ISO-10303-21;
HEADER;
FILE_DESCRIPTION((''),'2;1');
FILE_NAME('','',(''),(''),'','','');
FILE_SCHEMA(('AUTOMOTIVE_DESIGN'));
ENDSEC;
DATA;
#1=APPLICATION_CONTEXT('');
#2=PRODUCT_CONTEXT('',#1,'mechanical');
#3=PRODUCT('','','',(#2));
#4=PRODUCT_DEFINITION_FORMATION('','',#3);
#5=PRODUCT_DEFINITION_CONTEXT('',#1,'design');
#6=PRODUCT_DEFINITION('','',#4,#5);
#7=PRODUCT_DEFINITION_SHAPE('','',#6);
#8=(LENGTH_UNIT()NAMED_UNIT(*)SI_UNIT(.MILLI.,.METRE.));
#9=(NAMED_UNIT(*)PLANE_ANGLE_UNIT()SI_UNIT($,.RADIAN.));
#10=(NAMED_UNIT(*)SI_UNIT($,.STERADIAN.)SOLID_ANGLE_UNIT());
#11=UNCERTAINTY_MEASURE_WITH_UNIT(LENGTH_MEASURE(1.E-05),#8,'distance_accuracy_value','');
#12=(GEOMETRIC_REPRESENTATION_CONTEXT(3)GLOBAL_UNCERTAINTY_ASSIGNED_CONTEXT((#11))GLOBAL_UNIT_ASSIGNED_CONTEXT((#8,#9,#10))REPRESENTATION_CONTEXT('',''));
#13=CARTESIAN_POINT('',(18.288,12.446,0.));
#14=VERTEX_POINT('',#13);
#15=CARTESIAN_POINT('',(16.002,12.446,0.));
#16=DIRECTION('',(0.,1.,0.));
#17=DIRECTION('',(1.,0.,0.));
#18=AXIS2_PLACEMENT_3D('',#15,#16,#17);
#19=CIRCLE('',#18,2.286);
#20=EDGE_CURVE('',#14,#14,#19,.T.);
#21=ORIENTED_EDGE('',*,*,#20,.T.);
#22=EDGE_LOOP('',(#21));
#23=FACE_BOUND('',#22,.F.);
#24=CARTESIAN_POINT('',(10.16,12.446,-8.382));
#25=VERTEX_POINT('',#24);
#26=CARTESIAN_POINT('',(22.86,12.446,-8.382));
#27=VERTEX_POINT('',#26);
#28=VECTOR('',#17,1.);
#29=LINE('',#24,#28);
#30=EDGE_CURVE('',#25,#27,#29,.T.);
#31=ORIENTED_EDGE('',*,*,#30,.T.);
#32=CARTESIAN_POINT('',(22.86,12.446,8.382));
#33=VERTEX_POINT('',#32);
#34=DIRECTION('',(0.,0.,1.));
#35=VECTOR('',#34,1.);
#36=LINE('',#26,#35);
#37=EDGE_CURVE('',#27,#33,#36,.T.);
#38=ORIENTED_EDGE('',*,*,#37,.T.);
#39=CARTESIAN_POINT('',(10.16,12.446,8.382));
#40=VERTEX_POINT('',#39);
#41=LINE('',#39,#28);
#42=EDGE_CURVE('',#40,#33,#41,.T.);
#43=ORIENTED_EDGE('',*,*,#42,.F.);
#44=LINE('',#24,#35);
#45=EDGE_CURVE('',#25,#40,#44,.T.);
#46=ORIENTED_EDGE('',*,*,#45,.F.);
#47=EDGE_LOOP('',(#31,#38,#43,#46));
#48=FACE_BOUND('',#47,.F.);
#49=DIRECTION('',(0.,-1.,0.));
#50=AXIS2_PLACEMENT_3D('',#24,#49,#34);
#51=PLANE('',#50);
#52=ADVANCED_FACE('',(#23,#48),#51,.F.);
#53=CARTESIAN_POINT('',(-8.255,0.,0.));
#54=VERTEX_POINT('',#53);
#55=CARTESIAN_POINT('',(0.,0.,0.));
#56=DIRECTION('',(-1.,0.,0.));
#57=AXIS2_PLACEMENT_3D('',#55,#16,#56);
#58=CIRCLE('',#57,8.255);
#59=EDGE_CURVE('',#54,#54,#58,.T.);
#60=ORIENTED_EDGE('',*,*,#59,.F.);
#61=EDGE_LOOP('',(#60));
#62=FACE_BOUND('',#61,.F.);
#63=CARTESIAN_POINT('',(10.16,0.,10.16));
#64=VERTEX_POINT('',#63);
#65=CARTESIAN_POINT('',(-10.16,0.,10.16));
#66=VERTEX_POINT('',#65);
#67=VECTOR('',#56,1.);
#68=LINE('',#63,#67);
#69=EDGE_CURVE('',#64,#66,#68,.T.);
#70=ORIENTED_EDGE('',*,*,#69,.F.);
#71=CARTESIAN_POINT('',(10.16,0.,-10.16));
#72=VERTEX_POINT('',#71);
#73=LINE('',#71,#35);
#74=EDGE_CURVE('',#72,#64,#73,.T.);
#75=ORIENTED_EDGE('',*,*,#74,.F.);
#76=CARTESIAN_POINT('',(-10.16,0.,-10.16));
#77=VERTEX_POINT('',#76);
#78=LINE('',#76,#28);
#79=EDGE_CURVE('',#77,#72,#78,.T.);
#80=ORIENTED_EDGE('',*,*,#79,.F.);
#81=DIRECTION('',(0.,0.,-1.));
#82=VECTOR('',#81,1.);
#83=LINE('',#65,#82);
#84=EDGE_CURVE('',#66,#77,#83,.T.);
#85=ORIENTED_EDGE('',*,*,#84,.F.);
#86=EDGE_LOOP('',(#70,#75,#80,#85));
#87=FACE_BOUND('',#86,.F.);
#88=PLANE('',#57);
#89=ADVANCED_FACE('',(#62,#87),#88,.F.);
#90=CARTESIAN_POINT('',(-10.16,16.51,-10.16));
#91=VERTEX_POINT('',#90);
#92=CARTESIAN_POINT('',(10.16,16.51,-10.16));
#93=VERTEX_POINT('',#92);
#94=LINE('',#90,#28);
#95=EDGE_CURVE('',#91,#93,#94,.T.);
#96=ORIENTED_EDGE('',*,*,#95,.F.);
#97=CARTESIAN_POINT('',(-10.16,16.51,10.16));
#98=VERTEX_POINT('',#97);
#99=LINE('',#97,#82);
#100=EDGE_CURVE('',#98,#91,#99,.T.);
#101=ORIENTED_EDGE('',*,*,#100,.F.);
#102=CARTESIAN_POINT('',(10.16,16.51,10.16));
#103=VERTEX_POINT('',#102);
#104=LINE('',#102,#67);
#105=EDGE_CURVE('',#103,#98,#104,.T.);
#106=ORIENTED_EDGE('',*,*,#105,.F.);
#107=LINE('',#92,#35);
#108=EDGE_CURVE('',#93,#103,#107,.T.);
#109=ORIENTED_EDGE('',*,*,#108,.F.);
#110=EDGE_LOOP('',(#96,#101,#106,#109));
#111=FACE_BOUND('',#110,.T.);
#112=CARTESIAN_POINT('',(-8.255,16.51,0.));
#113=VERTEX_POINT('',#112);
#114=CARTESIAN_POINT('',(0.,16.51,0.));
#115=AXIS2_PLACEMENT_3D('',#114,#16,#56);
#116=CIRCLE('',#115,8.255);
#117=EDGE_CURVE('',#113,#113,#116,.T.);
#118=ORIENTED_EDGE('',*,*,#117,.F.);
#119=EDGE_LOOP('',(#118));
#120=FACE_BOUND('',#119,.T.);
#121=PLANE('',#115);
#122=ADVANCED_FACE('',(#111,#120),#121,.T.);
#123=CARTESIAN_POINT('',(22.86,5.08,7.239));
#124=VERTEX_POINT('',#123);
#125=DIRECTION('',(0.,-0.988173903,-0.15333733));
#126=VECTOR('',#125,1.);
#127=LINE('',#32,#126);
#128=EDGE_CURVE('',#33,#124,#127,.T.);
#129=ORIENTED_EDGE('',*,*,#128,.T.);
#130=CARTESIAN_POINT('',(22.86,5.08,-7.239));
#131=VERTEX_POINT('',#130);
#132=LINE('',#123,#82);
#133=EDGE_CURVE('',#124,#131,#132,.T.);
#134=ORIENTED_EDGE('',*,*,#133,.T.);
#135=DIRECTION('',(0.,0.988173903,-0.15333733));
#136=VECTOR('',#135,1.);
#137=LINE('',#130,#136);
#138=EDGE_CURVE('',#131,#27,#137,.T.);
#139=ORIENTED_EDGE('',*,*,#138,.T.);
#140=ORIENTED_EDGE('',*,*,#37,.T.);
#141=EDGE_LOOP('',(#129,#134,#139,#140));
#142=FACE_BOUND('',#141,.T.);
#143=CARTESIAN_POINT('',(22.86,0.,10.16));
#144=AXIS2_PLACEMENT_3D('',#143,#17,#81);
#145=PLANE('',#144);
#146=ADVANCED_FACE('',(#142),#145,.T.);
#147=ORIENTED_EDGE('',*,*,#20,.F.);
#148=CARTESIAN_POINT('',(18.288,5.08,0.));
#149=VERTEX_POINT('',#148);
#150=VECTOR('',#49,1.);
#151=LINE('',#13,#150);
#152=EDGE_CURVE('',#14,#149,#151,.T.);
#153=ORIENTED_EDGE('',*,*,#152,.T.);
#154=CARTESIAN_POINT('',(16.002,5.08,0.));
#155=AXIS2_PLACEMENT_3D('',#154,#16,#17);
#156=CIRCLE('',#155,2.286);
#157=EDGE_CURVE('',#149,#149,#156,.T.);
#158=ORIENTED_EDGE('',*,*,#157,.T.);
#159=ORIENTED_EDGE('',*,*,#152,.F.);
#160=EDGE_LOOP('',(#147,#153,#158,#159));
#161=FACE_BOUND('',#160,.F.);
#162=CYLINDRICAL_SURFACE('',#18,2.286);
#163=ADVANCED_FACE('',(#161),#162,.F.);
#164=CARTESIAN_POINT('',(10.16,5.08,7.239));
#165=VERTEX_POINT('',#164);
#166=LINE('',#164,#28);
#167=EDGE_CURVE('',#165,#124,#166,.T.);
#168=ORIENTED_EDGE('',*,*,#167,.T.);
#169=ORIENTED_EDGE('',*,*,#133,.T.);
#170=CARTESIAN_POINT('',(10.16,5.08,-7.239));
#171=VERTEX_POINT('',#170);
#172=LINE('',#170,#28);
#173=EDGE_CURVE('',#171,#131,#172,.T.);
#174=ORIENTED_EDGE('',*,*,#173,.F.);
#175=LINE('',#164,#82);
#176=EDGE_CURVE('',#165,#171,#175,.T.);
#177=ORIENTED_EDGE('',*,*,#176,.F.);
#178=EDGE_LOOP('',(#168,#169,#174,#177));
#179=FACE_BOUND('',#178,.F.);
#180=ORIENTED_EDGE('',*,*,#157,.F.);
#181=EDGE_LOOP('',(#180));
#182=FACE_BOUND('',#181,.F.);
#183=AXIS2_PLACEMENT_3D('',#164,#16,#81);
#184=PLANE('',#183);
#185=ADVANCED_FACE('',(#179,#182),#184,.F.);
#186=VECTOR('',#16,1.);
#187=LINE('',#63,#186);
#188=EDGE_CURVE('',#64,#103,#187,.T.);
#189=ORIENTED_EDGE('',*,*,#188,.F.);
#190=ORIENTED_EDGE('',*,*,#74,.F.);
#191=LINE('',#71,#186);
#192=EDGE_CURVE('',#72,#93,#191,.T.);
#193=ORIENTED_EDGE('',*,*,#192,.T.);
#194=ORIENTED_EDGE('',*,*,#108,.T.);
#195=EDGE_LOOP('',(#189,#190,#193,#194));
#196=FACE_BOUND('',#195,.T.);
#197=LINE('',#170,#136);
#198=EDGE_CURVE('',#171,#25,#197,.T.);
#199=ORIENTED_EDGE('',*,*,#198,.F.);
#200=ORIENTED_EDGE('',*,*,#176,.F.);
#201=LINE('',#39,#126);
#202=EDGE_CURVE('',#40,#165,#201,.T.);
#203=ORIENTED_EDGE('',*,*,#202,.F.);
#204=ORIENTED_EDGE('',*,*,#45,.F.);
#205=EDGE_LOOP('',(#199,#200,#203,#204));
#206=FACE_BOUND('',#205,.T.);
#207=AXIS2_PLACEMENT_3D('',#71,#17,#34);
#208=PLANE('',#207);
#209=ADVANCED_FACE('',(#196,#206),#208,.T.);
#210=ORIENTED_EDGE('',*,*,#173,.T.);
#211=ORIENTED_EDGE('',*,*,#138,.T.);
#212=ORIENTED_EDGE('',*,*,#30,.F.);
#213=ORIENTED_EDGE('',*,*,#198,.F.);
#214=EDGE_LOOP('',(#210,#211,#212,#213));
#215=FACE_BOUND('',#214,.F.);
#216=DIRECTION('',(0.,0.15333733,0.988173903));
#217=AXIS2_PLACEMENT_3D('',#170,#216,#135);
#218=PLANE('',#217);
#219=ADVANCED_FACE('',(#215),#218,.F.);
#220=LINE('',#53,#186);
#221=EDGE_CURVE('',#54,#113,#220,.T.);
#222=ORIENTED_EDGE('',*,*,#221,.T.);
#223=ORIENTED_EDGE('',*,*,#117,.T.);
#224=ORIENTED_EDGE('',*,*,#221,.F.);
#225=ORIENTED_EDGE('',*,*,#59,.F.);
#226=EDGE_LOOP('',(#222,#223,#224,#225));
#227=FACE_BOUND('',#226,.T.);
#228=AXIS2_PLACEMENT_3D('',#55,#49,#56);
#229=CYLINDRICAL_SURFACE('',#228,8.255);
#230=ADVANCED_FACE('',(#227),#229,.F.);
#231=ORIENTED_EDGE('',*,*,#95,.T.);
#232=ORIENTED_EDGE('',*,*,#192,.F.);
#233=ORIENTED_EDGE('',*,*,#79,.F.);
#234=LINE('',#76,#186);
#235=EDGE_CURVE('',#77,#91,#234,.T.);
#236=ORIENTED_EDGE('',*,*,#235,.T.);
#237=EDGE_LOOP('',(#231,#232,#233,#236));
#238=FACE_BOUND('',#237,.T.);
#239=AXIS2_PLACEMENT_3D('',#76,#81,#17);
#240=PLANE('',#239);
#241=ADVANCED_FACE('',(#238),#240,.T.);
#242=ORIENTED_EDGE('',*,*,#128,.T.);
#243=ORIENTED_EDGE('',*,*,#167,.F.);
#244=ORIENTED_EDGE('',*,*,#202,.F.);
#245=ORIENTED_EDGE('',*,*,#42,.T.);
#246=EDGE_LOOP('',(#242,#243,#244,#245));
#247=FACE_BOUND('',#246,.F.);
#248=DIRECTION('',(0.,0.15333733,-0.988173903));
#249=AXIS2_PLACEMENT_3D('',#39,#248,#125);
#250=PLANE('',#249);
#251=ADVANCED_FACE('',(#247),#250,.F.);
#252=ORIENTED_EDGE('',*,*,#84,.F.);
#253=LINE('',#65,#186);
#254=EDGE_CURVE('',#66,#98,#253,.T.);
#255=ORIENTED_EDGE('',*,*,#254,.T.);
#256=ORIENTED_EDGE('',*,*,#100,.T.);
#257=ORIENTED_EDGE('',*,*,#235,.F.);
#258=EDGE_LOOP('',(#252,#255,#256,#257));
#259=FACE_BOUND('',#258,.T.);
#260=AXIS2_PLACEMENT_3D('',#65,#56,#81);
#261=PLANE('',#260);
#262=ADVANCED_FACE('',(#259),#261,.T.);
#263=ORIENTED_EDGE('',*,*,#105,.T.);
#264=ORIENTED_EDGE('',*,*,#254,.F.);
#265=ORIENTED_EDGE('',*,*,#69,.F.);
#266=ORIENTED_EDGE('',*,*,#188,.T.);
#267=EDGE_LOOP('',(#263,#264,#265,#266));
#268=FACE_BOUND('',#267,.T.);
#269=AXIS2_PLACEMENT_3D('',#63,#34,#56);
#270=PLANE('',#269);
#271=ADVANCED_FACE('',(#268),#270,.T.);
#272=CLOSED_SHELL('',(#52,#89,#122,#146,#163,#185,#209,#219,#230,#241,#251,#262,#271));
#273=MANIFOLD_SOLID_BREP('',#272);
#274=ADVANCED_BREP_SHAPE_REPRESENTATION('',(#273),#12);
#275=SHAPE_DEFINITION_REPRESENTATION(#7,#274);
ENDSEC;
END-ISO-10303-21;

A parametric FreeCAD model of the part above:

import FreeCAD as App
import Part
import Sketcher
Q = App.Units.Quantity

doc = App.newDocument("Part")
body = doc.addObject("PartDesign::Body", "Body")

# Sketch on XZ plane
sketch1 = body.newObject("Sketcher::SketchObject", "Sketch")
sketch1.AttachmentSupport = (doc.getObject("XZ_Plane"), [""])
sketch1.MapMode = "FlatFace"
sketch1.addGeometry([
    Part.LineSegment(App.Vector(-10, 10, 0), App.Vector(10, 10, 0)),  # 0
    Part.LineSegment(App.Vector(10, 10, 0), App.Vector(10, -10, 0)),  # 1
    Part.LineSegment(App.Vector(10, -10, 0), App.Vector(-10, -10, 0)),  # 2
    Part.LineSegment(App.Vector(-10, -10, 0), App.Vector(-10, 10, 0)),  # 3
    Part.Circle(App.Vector(0, 0, 0), App.Vector(0, 0, 1), 8),  # 4
], False)
sketch1.addConstraint([
    Sketcher.Constraint("Coincident", 0, 2, 1, 1),
    Sketcher.Constraint("Coincident", 1, 2, 2, 1),
    Sketcher.Constraint("Coincident", 2, 2, 3, 1),
    Sketcher.Constraint("Coincident", 3, 2, 0, 1),
    Sketcher.Constraint("Horizontal", 0),
    Sketcher.Constraint("Vertical", 1),
    Sketcher.Constraint("Horizontal", 2),
    Sketcher.Constraint("Vertical", 3),
    Sketcher.Constraint("Coincident", 4, 3, -1, 1),
    Sketcher.Constraint("Symmetric", 0, 2, 2, 2, -1, 1),
    Sketcher.Constraint("Equal", 2, 1),
    Sketcher.Constraint("Diameter", 4, Q("0.65 in")),
    Sketcher.Constraint("DistanceX", 0, 1, 0, 2, Q("0.8 in")),
])
pad1 = body.newObject("PartDesign::Pad", "Pad")
pad1.Profile = sketch1
pad1.Length = Q("0.65 in")
pad1.Reversed = True

# Sketch on YZ plane
sketch2 = body.newObject("Sketcher::SketchObject", "Sketch001")
sketch2.AttachmentSupport = (doc.getObject("YZ_Plane"), [""])
sketch2.MapMode = "FlatFace"
sketch2.AttachmentOffset = App.Placement(App.Vector(0, 0, 0.4 * 25.4), App.Rotation())
sketch2.addGeometry([
    Part.LineSegment(App.Vector(12, -8, 0), App.Vector(12, 8, 0)),
    Part.LineSegment(App.Vector(12, 8, 0), App.Vector(5, 7, 0)),
    Part.LineSegment(App.Vector(5, 7, 0), App.Vector(5, -7, 0)),
    Part.LineSegment(App.Vector(5, -7, 0), App.Vector(12, -8, 0)),
], False)
sketch2.addConstraint([
    Sketcher.Constraint("Coincident", 0, 2, 1, 1),
    Sketcher.Constraint("Coincident", 1, 2, 2, 1),
    Sketcher.Constraint("Coincident", 2, 2, 3, 1),
    Sketcher.Constraint("Coincident", 3, 2, 0, 1),
    Sketcher.Constraint("Vertical", 0),
    Sketcher.Constraint("Vertical", 2),
    Sketcher.Constraint("Equal", 1, 3),
    Sketcher.Constraint("DistanceY", 0, 1, 0, 2, Q("0.66 in")),
    Sketcher.Constraint("DistanceY", 2, 2, 2, 1, Q("0.57 in")),
    Sketcher.Constraint("DistanceX", -1, 1, 1, 2, Q("0.2 in")),
    Sketcher.Constraint("DistanceX", 1, 2, 0, 2, Q("0.29 in")),
    Sketcher.Constraint("DistanceY", -1, 1, 0, 2, Q("0.33 in")),
])
pad2 = body.newObject("PartDesign::Pad", "Pad001")
pad2.Profile = sketch2
pad2.Length = Q("0.5 in")

# Sketch on XZ plane
sketch3 = body.newObject("Sketcher::SketchObject", "Sketch002")
sketch3.AttachmentSupport = (doc.getObject("XZ_Plane"), [""])
sketch3.MapMode = "FlatFace"
sketch3.AttachmentOffset = App.Placement(App.Vector(0, 0, -0.49 * 25.4), App.Rotation())
sketch3.addGeometry(Part.Circle(App.Vector(16, 0, 0), App.Vector(0, 0, 1), 2.3), False)
sketch3.addConstraint([
    Sketcher.Constraint("PointOnObject", 0, 3, -1),
    Sketcher.Constraint("Diameter", 0, Q("0.18 in")),
    Sketcher.Constraint("DistanceX", -1, 1, 0, 3, Q("0.63 in")),
])
pocket1 = body.newObject("PartDesign::Pocket", "Pocket")
pocket1.Profile = sketch3
pocket1.Length = Q("0.7 in")
pocket1.Reversed = True

doc.recompute()
